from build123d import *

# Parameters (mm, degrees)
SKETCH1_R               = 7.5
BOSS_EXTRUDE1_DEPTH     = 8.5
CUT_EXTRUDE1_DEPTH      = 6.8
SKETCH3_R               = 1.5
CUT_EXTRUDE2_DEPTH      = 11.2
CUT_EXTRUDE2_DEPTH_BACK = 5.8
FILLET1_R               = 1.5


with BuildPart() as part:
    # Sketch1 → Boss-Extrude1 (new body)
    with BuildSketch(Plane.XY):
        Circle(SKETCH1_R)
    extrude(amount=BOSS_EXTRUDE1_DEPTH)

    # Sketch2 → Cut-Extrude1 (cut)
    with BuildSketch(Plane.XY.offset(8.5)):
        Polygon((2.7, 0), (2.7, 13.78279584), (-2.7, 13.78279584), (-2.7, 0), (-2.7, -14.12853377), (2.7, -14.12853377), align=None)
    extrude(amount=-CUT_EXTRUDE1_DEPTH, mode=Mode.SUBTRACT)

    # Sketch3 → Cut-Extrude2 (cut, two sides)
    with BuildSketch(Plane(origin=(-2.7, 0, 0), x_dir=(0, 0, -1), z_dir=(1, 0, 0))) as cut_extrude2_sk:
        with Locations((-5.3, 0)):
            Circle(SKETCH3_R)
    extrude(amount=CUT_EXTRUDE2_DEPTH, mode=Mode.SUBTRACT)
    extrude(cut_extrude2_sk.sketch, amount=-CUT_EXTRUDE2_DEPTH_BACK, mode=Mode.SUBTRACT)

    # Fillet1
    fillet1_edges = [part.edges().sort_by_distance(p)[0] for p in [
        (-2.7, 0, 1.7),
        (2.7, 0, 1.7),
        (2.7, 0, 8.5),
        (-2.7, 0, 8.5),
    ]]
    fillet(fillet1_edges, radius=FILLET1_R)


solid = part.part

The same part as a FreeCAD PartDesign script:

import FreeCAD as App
import Part
import Sketcher


def edges_at(feature, points):
    """Names of the edges that pass closest to the given points."""
    edges = feature.Shape.Edges
    near = lambda p: min(range(len(edges)), key=lambda i: edges[i].distToShape(Part.Vertex(*p))[0])
    return sorted({f"Edge{near(p) + 1}" for p in points})


def add_polygon(sketch, points):
    """Adds a closed chain of lines whose ends are joined by coincident constraints."""
    first, n = sketch.GeometryCount, len(points)
    for a, b in zip(points, points[1:] + points[:1]):
        sketch.addGeometry(Part.LineSegment(App.Vector(*a, 0), App.Vector(*b, 0)), False)
    for i in range(n):
        sketch.addConstraint(Sketcher.Constraint("Coincident", first + i, 2, first + (i + 1) % n, 1))

doc = App.newDocument("Part")
params = doc.addObject("Spreadsheet::Sheet", "Params")
for row, (alias, value) in enumerate([
    ("sketch1_diameter", "15 mm"),
    ("pad1_length", "8.5 mm"),
    ("sketch2_width", "5.4 mm"),
    ("pocket1_length", "6.8 mm"),
    ("sketch3_diameter", "3 mm"),
    ("fillet_radius", "1.5 mm"),
], start=1):
    params.set(f"A{row}", alias)
    params.set(f"B{row}", "=" + value)
    params.setAlias(f"B{row}", alias)

body = doc.addObject("PartDesign::Body", "Body")

# Sketch on XY plane
sketch1 = doc.addObject("Sketcher::SketchObject", "Sketch")
body.addObject(sketch1)
sketch1.AttachmentSupport = (doc.XY_Plane, [""])
sketch1.MapMode = "FlatFace"
sketch1.addGeometry(Part.Circle(App.Vector(0, 0, 0), App.Vector(0, 0, 1), 8), False)
sketch1.addConstraint([
    Sketcher.Constraint("Coincident", 0, 3, -1, 1),
    Sketcher.Constraint("Diameter", 0, 15.0),
])
sketch1.setExpression("Constraints[1]", "Params.sketch1_diameter")
pad1 = doc.addObject("PartDesign::Pad", "Pad")
body.addObject(pad1)
pad1.Profile = sketch1
pad1.setExpression("Length", "Params.pad1_length")

# Sketch on XY plane
sketch2 = doc.addObject("Sketcher::SketchObject", "Sketch001")
body.addObject(sketch2)
sketch2.AttachmentSupport = (doc.XY_Plane, [""])
sketch2.MapMode = "FlatFace"
sketch2.AttachmentOffset = App.Placement(App.Vector(0, 0, 8.5), App.Rotation())
add_polygon(sketch2, [(3, 14), (-3, 14), (-3, -14), (3, -14)])  # lines 0-3
sketch2.addConstraint([
    Sketcher.Constraint("Horizontal", 0),
    Sketcher.Constraint("Vertical", 1),
    Sketcher.Constraint("Horizontal", 2),
    Sketcher.Constraint("Vertical", 3),
    Sketcher.Constraint("DistanceX", 0, 2, 0, 1, 5.4),
    Sketcher.Constraint("DistanceX", 0, 2, -1, 1, 2.7),
    Sketcher.Constraint("DistanceY", 1, 2, 1, 1, 27.91133),
    Sketcher.Constraint("DistanceY", -1, 1, 0, 2, 13.782796),
])
sketch2.setExpression("Constraints[8]", "Params.sketch2_width")
pocket1 = doc.addObject("PartDesign::Pocket", "Pocket")
body.addObject(pocket1)
pocket1.Profile = sketch2
pocket1.setExpression("Length", "Params.pocket1_length")

# Sketch on YZ plane
sketch3 = doc.addObject("Sketcher::SketchObject", "Sketch002")
body.addObject(sketch3)
sketch3.AttachmentSupport = (doc.YZ_Plane, [""])
sketch3.MapMode = "FlatFace"
sketch3.AttachmentOffset = App.Placement(App.Vector(0, 0, -2.7), App.Rotation())
sketch3.addGeometry(Part.Circle(App.Vector(0, 5.3, 0), App.Vector(0, 0, 1), 1.5), False)
sketch3.addConstraint([
    Sketcher.Constraint("PointOnObject", 0, 3, -2),
    Sketcher.Constraint("Diameter", 0, 3.0),
    Sketcher.Constraint("DistanceY", -1, 1, 0, 3, 5.3),
])
sketch3.setExpression("Constraints[1]", "Params.sketch3_diameter")
pocket2 = doc.addObject("PartDesign::Pocket", "Pocket001")
body.addObject(pocket2)
pocket2.Profile = sketch3
pocket2.Type = "ThroughAll"
pocket2.Midplane = True
doc.recompute()

fillet = doc.addObject("PartDesign::Fillet", "Fillet")
body.addObject(fillet)
fillet.Base = (pocket2, edges_at(pocket2, [
    (-2.7, 0, 1.7),
    (2.7, 0, 1.7),
    (2.7, 0, 8.5),
    (-2.7, 0, 8.5),
]))
fillet.setExpression("Radius", "Params.fillet_radius")

doc.recompute()
